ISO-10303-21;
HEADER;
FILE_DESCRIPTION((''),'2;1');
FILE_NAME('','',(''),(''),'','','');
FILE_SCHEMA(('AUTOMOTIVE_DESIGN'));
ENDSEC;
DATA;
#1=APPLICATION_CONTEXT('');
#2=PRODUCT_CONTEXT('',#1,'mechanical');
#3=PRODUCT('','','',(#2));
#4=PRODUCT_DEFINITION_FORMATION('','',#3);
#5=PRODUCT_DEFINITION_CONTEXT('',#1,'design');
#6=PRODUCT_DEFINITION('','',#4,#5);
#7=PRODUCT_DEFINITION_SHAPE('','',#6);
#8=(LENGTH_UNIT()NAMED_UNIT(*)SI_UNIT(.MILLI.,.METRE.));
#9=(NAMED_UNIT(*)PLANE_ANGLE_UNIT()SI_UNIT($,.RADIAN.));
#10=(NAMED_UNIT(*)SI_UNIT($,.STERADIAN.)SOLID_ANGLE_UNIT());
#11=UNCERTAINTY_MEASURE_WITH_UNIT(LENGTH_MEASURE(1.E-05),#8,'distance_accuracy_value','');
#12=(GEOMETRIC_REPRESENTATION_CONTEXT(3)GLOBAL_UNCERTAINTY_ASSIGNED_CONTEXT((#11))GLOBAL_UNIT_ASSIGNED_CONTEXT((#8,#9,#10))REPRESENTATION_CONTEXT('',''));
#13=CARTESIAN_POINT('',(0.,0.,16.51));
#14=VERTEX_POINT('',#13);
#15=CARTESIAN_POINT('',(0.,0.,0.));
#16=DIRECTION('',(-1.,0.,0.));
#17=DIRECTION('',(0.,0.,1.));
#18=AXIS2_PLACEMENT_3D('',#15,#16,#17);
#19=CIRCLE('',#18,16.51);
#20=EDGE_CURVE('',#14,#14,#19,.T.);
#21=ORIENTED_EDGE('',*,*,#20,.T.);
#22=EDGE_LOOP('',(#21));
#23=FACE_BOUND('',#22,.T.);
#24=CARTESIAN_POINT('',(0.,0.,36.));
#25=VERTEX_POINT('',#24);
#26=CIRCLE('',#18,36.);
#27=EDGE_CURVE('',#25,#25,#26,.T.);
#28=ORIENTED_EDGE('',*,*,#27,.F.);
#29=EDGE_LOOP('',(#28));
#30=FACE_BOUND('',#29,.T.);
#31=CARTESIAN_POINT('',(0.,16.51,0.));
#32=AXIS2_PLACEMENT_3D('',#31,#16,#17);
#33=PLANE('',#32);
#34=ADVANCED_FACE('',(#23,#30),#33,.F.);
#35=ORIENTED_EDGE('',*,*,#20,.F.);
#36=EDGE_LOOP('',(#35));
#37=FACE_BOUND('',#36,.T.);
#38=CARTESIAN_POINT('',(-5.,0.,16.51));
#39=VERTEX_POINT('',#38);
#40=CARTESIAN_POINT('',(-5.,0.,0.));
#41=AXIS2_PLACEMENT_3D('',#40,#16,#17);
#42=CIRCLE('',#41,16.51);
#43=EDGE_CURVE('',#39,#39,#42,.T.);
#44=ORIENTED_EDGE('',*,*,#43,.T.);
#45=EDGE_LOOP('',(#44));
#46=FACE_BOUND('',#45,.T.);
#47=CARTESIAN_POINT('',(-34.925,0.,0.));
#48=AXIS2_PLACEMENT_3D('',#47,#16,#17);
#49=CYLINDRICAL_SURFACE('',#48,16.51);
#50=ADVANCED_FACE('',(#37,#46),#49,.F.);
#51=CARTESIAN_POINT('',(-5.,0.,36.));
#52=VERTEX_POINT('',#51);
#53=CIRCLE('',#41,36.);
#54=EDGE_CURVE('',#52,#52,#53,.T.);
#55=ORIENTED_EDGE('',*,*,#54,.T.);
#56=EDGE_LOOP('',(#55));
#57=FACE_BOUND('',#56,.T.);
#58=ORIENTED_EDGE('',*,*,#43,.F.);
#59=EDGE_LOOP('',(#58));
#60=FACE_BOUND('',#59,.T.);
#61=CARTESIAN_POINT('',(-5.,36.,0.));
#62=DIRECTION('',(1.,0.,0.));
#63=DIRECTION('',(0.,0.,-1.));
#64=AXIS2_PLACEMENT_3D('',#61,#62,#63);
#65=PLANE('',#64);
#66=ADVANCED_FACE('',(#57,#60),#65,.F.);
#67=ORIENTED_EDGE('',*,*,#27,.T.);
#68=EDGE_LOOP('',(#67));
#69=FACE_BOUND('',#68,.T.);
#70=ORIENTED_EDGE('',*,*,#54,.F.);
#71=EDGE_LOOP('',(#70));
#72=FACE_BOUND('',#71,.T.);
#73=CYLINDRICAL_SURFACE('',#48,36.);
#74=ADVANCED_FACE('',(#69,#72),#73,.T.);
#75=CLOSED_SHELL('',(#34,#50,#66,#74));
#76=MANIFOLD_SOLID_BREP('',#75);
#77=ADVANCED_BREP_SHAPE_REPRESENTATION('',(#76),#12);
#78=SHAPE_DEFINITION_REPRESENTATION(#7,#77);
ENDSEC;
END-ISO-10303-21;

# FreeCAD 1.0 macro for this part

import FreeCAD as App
import Part
import Sketcher

V = App.Vector

doc = App.newDocument("Part")
body = doc.addObject("PartDesign::Body", "Body")

# Sketch on XY plane
sketch1 = body.newObject("Sketcher::SketchObject", "Sketch")
sketch1.AttachmentSupport = (doc.getObject("XY_Plane"), [""])
sketch1.MapMode = "FlatFace"
sketch1.addGeometry(Part.LineSegment(V(-5, 36, 0), V(-5, 17, 0)), False)
sketch1.addGeometry(Part.LineSegment(V(-5, 17, 0), V(0, 17, 0)), False)
sketch1.addGeometry(Part.LineSegment(V(0, 17, 0), V(0, 36, 0)), False)
sketch1.addGeometry(Part.LineSegment(V(0, 36, 0), V(-5, 36, 0)), False)
sketch1.addConstraint(Sketcher.Constraint("Coincident", 0, 2, 1, 1))
sketch1.addConstraint(Sketcher.Constraint("Coincident", 1, 2, 2, 1))
sketch1.addConstraint(Sketcher.Constraint("Coincident", 2, 2, 3, 1))
sketch1.addConstraint(Sketcher.Constraint("Coincident", 3, 2, 0, 1))
sketch1.addConstraint(Sketcher.Constraint("Vertical", 0))
sketch1.addConstraint(Sketcher.Constraint("Horizontal", 1))
sketch1.addConstraint(Sketcher.Constraint("Vertical", 2))
sketch1.addConstraint(Sketcher.Constraint("Horizontal", 3))
sketch1.addConstraint(Sketcher.Constraint("PointOnObject", 1, 2, -2))
sketch1.addConstraint(Sketcher.Constraint("DistanceX", 1, 1, 1, 2, 5.0))
sketch1.addConstraint(Sketcher.Constraint("DistanceY", -1, 1, 2, 2, 36.0))
sketch1.addConstraint(Sketcher.Constraint("DistanceY", 0, 2, 0, 1, 19.49))
revolution = body.newObject("PartDesign::Revolution", "Revolution")
revolution.Profile = sketch1
revolution.ReferenceAxis = (sketch1, ["H_Axis"])
revolution.Angle = 360

doc.recompute()
